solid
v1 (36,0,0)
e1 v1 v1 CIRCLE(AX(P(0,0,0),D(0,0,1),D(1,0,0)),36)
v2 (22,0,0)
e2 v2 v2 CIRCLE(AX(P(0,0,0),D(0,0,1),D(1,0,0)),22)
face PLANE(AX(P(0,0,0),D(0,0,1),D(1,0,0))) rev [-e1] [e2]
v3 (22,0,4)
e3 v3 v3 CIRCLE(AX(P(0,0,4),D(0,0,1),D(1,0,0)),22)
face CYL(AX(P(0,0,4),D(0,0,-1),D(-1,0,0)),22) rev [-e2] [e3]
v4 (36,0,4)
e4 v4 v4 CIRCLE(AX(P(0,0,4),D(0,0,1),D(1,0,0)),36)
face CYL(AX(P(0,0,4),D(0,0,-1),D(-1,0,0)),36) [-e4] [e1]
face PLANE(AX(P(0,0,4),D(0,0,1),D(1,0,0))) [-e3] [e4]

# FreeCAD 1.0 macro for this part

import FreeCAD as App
import Part
import Sketcher

doc = App.newDocument("Part")
body = doc.addObject("PartDesign::Body", "Body")

# Sketch on XY plane
sketch1 = body.newObject("Sketcher::SketchObject", "Sketch")
sketch1.AttachmentSupport = (doc.getObject("XY_Plane"), [""])
sketch1.MapMode = "FlatFace"
sketch1.addGeometry(Part.Circle(App.Vector(0, 0, 0), App.Vector(0, 0, 1), 36), False)
sketch1.addGeometry(Part.Circle(App.Vector(0, 0, 0), App.Vector(0, 0, 1), 22), False)
sketch1.addConstraint(Sketcher.Constraint("Coincident", 0, 3, -1, 1))
sketch1.addConstraint(Sketcher.Constraint("Coincident", 1, 3, -1, 1))
sketch1.addConstraint(Sketcher.Constraint("Diameter", 0, 72.0))
sketch1.addConstraint(Sketcher.Constraint("Diameter", 1, 44.0))
pad1 = body.newObject("PartDesign::Pad", "Pad")
pad1.Profile = sketch1
pad1.Length = 4

doc.recompute()
